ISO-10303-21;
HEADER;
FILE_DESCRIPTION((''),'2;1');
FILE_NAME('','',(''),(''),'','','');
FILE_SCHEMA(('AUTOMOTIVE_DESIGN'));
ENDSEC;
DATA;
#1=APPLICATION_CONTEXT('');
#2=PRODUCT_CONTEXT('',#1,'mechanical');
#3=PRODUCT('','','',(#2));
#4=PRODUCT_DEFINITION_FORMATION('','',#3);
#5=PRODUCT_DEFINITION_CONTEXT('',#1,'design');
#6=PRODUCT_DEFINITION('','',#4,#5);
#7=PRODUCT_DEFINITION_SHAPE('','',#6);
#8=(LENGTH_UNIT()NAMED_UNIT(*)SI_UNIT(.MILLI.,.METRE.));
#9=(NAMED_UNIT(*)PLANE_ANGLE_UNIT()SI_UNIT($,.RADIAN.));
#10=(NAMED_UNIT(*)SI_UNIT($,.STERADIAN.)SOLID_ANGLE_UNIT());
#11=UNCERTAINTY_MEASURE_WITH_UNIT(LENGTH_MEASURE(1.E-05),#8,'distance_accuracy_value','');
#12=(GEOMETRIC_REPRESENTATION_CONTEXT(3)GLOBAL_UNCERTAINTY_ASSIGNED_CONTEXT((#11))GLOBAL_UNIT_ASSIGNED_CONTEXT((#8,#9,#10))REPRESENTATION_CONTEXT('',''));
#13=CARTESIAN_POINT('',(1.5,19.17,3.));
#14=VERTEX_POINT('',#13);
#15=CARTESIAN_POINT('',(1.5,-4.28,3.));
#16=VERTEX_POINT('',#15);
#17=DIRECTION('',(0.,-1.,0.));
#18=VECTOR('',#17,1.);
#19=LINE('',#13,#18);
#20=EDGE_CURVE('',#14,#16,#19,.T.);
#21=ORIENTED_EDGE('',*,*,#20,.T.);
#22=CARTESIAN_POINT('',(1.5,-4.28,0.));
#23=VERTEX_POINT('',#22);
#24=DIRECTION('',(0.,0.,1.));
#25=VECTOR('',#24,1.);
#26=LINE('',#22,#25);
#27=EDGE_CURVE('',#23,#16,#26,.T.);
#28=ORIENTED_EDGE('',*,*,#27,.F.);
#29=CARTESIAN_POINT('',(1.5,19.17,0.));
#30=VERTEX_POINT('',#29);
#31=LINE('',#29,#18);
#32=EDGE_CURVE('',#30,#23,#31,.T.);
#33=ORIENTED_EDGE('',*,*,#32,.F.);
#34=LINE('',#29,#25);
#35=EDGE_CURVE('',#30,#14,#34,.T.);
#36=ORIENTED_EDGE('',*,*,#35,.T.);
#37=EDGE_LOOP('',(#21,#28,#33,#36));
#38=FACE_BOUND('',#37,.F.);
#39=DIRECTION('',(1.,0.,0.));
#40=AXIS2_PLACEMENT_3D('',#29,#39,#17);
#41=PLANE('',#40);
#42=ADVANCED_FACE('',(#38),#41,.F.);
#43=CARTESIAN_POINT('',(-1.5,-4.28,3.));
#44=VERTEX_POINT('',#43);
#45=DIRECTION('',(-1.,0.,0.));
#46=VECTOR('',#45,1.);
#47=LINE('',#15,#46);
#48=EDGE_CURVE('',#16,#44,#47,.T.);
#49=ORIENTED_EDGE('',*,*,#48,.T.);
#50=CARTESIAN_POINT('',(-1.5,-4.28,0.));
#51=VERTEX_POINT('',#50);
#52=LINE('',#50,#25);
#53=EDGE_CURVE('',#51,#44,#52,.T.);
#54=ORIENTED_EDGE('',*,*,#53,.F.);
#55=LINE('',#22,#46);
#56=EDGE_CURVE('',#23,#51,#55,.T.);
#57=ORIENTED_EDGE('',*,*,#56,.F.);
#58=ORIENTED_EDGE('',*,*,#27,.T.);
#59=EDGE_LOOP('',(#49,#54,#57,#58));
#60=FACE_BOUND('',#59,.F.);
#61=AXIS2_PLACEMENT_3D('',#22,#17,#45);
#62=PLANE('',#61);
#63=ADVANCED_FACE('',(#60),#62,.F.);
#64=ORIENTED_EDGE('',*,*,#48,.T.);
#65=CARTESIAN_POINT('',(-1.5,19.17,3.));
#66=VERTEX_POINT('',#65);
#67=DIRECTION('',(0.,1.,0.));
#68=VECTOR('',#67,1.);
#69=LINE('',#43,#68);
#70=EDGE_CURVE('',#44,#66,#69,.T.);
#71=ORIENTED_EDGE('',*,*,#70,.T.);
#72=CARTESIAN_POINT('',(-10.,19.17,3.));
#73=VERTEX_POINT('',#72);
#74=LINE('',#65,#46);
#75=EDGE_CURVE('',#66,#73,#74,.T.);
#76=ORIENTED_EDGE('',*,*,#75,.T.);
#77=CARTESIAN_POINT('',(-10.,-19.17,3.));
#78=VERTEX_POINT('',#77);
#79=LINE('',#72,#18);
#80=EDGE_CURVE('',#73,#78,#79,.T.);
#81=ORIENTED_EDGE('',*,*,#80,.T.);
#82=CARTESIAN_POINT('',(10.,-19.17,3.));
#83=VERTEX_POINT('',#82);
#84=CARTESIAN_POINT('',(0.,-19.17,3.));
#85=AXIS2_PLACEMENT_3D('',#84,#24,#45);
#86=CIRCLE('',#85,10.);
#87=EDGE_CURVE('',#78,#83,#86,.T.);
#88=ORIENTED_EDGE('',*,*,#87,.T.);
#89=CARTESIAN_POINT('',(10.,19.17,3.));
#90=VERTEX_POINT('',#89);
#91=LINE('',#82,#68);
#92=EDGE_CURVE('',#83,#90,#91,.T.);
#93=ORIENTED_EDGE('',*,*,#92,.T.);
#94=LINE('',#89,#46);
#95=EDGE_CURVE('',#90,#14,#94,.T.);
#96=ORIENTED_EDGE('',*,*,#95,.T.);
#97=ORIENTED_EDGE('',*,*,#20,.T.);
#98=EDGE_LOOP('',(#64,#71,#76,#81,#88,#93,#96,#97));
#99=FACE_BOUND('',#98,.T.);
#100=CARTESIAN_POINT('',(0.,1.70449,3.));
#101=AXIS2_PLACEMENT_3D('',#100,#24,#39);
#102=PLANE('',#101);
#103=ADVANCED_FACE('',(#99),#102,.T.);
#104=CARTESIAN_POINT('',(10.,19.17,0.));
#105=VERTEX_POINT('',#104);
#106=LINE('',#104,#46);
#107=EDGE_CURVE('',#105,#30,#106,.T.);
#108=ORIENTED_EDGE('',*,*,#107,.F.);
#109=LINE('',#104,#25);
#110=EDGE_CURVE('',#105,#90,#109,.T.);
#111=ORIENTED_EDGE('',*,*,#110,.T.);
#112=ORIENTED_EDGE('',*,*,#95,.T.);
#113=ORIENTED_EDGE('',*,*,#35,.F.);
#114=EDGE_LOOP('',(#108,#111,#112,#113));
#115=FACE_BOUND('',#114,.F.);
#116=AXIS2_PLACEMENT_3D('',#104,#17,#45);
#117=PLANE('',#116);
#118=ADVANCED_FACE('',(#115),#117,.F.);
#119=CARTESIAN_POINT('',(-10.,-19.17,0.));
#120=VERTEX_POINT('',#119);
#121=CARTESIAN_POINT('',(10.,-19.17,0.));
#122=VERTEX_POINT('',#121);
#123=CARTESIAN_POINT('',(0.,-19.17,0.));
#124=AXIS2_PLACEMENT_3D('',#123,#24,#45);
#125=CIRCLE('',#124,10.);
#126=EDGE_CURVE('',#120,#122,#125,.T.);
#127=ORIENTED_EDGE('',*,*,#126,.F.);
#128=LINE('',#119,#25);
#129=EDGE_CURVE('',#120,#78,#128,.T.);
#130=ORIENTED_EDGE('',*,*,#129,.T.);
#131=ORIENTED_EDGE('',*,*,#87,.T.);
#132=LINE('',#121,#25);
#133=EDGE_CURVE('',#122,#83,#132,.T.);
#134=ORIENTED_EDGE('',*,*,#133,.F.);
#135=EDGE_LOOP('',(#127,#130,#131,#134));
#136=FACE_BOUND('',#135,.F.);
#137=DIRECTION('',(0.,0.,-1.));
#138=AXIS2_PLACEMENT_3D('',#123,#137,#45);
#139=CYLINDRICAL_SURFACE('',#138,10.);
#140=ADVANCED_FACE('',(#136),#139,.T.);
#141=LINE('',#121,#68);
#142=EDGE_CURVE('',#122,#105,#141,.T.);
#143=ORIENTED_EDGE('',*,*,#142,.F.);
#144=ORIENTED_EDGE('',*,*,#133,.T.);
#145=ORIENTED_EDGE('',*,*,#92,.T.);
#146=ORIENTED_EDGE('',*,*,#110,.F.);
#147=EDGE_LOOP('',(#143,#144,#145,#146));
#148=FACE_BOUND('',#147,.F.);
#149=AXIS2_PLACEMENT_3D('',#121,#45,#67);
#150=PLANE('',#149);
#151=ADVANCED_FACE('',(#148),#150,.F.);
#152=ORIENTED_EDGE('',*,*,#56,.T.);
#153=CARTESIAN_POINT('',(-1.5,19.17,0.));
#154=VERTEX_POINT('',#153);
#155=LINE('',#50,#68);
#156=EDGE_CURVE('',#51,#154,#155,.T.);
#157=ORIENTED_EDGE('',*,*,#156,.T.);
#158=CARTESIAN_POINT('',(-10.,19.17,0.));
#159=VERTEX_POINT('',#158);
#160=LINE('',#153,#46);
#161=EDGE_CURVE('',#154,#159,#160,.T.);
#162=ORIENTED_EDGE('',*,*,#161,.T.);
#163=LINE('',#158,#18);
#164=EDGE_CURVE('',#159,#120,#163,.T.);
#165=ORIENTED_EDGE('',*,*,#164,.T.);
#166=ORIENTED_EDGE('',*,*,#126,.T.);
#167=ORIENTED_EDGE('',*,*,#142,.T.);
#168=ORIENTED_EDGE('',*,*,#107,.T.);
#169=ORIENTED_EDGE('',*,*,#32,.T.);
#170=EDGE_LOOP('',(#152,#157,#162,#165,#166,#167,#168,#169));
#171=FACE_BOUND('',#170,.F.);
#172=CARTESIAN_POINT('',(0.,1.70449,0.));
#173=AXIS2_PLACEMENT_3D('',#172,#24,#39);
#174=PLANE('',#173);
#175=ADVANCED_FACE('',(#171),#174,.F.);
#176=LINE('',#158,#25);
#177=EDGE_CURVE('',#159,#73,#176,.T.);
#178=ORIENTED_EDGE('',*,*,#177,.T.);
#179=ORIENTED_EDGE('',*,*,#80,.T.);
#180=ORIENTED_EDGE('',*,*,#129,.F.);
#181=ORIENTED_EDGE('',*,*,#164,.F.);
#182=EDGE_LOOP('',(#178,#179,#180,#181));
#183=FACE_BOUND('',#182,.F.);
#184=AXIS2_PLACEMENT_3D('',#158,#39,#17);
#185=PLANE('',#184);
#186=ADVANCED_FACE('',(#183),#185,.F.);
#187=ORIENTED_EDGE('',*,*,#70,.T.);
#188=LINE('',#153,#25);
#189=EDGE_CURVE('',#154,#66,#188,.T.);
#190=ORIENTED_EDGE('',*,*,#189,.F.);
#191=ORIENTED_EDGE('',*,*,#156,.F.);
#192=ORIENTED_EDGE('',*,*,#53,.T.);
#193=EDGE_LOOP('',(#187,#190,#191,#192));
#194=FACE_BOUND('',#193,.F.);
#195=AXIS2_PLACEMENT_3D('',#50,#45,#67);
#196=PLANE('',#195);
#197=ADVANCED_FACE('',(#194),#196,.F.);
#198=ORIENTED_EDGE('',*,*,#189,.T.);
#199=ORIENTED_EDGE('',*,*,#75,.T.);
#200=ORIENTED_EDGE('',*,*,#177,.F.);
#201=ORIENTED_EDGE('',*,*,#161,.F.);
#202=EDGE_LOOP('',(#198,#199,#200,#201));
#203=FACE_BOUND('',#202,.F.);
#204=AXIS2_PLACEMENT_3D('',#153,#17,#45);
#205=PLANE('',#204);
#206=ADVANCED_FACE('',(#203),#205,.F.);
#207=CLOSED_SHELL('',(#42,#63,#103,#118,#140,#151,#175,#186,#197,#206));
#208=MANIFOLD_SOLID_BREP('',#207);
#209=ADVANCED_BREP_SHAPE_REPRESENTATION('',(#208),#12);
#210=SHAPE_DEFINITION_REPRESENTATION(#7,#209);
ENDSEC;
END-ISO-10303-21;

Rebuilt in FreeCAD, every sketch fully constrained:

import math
import FreeCAD as App
import Part
import Sketcher

V = App.Vector
Q = App.Units.Quantity

doc = App.newDocument("Part")
body = doc.addObject("PartDesign::Body", "Body")

sketch1 = doc.addObject("Sketcher::SketchObject", "Sketch")
body.addObject(sketch1)
sketch1.AttachmentSupport = (doc.XY_Plane, [""])
sketch1.MapMode = "FlatFace"
sketch1.addGeometry([
    Part.LineSegment(V(-1.5, 19.2, 0), V(-10, 19.2, 0)),
    Part.LineSegment(V(-10, 19.2, 0), V(-10, -19.2, 0)),
    Part.ArcOfCircle(Part.Circle(V(0, -19.2, 0), V(0, 0, 1), 10), math.radians(180), math.radians(360)),
    Part.LineSegment(V(10, -19.2, 0), V(10, 19.2, 0)),
    Part.LineSegment(V(10, 19.2, 0), V(1.5, 19.2, 0)),
    Part.LineSegment(V(1.5, 19.2, 0), V(1.5, -4.3, 0)),
    Part.LineSegment(V(1.5, -4.3, 0), V(-1.5, -4.3, 0)),
    Part.LineSegment(V(-1.5, -4.3, 0), V(-1.5, 19.2, 0)),
], False)
sketch1.addConstraint([
    Sketcher.Constraint("Coincident", 0, 2, 1, 1),
    Sketcher.Constraint("Tangent", 1, 2, 2, 1),
    Sketcher.Constraint("Tangent", 2, 2, 3, 1),
    Sketcher.Constraint("Coincident", 3, 2, 4, 1),
    Sketcher.Constraint("Coincident", 4, 2, 5, 1),
    Sketcher.Constraint("Coincident", 5, 2, 6, 1),
    Sketcher.Constraint("Coincident", 6, 2, 7, 1),
    Sketcher.Constraint("Coincident", 7, 2, 0, 1),
    Sketcher.Constraint("Horizontal", 0),
    Sketcher.Constraint("Vertical", 1),
    Sketcher.Constraint("Vertical", 3),
    Sketcher.Constraint("Horizontal", 4),
    Sketcher.Constraint("Vertical", 5),
    Sketcher.Constraint("Horizontal", 6),
    Sketcher.Constraint("Vertical", 7),
    Sketcher.Constraint("Symmetric", 0, 2, 2, 2, -1, 1),
    Sketcher.Constraint("Symmetric", 4, 2, 7, 2, -2),
    Sketcher.Constraint("Radius", 2, Q("10 mm")),
    Sketcher.Constraint("DistanceX", 6, 2, 6, 1, Q("3 mm")),
    Sketcher.Constraint("DistanceY", 1, 2, 1, 1, Q("38.34 mm")),
    Sketcher.Constraint("DistanceY", 5, 2, 5, 1, Q("23.45 mm")),
])
pad1 = doc.addObject("PartDesign::Pad", "Pad")
body.addObject(pad1)
pad1.Profile = sketch1
pad1.Length = 3

doc.recompute()
